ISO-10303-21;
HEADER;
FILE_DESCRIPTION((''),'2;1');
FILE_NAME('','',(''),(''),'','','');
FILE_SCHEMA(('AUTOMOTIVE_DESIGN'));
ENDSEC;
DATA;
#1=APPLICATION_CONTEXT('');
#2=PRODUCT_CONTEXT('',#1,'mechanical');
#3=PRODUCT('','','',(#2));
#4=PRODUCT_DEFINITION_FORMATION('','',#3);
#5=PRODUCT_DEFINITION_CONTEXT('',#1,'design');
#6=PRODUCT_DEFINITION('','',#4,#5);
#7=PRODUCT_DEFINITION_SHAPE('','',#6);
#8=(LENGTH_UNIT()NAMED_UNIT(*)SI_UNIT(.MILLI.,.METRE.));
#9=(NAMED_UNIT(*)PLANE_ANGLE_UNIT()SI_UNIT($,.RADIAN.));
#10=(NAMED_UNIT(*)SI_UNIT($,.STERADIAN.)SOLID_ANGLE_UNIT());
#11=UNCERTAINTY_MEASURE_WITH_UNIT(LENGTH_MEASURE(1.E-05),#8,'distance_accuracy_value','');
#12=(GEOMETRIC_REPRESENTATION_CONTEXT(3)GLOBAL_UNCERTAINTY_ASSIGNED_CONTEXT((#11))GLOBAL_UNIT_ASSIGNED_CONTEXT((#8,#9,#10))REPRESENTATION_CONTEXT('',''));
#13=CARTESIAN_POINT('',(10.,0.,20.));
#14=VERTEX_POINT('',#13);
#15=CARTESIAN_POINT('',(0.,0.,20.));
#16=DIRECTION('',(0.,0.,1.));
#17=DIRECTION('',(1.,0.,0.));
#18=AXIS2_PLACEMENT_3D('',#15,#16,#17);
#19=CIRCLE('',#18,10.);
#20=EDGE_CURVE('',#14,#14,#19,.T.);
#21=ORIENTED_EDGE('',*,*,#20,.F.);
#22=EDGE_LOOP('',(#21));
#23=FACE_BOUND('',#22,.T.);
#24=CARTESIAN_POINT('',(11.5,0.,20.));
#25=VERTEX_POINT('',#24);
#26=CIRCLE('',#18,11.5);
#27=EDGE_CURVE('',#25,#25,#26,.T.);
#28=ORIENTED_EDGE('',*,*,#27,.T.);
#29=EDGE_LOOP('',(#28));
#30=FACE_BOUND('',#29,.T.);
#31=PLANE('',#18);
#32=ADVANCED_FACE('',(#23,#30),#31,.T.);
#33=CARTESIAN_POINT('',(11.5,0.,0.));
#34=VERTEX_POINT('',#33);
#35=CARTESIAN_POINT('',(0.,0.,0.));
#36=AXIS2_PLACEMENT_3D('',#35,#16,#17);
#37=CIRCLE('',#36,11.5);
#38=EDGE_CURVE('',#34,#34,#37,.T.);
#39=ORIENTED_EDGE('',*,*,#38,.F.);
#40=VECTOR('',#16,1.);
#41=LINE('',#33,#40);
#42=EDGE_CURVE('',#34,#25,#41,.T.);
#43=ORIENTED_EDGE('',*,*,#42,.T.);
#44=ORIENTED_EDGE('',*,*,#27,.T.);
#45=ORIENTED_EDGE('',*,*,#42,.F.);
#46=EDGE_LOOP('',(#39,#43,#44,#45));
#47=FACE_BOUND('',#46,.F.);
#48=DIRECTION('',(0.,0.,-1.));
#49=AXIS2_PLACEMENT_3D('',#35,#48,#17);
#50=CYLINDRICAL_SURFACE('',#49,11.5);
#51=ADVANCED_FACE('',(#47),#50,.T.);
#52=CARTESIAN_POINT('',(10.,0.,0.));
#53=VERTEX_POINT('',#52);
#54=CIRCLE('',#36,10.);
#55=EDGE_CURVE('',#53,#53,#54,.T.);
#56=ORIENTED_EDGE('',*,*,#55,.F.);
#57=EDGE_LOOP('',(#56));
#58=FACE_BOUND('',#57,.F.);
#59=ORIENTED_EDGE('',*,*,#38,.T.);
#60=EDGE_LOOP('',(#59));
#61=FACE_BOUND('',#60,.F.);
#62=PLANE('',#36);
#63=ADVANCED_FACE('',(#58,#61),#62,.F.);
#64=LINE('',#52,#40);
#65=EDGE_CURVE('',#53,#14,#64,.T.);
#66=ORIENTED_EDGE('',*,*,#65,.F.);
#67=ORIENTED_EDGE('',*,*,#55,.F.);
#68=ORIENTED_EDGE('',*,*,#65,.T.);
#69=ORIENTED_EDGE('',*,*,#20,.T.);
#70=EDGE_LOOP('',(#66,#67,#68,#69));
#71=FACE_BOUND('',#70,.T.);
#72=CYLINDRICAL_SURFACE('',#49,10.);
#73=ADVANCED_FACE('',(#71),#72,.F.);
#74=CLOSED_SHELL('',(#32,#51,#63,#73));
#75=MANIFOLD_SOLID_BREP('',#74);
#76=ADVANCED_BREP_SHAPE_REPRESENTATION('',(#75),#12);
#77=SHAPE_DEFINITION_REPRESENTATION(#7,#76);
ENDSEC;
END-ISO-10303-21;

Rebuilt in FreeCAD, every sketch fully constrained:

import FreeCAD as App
import Part
import Sketcher
Q = App.Units.Quantity

doc = App.newDocument("Part")
body = doc.addObject("PartDesign::Body", "Body")

# Sketch on XY plane
sketch1 = doc.addObject("Sketcher::SketchObject", "Sketch")
body.addObject(sketch1)
sketch1.AttachmentSupport = (doc.XY_Plane, [""])
sketch1.MapMode = "FlatFace"
sketch1.addGeometry([
    Part.Circle(App.Vector(0, 0, 0), App.Vector(0, 0, 1), 12),
    Part.Circle(App.Vector(0, 0, 0), App.Vector(0, 0, 1), 10),
], False)
sketch1.addConstraint([
    Sketcher.Constraint("Coincident", 0, 3, -1, 1),
    Sketcher.Constraint("Coincident", 1, 3, -1, 1),
    Sketcher.Constraint("Diameter", 0, Q("23 mm")),
    Sketcher.Constraint("Diameter", 1, Q("20 mm")),
])
pad1 = doc.addObject("PartDesign::Pad", "Pad")
body.addObject(pad1)
pad1.Profile = sketch1
pad1.Length = 20

doc.recompute()
